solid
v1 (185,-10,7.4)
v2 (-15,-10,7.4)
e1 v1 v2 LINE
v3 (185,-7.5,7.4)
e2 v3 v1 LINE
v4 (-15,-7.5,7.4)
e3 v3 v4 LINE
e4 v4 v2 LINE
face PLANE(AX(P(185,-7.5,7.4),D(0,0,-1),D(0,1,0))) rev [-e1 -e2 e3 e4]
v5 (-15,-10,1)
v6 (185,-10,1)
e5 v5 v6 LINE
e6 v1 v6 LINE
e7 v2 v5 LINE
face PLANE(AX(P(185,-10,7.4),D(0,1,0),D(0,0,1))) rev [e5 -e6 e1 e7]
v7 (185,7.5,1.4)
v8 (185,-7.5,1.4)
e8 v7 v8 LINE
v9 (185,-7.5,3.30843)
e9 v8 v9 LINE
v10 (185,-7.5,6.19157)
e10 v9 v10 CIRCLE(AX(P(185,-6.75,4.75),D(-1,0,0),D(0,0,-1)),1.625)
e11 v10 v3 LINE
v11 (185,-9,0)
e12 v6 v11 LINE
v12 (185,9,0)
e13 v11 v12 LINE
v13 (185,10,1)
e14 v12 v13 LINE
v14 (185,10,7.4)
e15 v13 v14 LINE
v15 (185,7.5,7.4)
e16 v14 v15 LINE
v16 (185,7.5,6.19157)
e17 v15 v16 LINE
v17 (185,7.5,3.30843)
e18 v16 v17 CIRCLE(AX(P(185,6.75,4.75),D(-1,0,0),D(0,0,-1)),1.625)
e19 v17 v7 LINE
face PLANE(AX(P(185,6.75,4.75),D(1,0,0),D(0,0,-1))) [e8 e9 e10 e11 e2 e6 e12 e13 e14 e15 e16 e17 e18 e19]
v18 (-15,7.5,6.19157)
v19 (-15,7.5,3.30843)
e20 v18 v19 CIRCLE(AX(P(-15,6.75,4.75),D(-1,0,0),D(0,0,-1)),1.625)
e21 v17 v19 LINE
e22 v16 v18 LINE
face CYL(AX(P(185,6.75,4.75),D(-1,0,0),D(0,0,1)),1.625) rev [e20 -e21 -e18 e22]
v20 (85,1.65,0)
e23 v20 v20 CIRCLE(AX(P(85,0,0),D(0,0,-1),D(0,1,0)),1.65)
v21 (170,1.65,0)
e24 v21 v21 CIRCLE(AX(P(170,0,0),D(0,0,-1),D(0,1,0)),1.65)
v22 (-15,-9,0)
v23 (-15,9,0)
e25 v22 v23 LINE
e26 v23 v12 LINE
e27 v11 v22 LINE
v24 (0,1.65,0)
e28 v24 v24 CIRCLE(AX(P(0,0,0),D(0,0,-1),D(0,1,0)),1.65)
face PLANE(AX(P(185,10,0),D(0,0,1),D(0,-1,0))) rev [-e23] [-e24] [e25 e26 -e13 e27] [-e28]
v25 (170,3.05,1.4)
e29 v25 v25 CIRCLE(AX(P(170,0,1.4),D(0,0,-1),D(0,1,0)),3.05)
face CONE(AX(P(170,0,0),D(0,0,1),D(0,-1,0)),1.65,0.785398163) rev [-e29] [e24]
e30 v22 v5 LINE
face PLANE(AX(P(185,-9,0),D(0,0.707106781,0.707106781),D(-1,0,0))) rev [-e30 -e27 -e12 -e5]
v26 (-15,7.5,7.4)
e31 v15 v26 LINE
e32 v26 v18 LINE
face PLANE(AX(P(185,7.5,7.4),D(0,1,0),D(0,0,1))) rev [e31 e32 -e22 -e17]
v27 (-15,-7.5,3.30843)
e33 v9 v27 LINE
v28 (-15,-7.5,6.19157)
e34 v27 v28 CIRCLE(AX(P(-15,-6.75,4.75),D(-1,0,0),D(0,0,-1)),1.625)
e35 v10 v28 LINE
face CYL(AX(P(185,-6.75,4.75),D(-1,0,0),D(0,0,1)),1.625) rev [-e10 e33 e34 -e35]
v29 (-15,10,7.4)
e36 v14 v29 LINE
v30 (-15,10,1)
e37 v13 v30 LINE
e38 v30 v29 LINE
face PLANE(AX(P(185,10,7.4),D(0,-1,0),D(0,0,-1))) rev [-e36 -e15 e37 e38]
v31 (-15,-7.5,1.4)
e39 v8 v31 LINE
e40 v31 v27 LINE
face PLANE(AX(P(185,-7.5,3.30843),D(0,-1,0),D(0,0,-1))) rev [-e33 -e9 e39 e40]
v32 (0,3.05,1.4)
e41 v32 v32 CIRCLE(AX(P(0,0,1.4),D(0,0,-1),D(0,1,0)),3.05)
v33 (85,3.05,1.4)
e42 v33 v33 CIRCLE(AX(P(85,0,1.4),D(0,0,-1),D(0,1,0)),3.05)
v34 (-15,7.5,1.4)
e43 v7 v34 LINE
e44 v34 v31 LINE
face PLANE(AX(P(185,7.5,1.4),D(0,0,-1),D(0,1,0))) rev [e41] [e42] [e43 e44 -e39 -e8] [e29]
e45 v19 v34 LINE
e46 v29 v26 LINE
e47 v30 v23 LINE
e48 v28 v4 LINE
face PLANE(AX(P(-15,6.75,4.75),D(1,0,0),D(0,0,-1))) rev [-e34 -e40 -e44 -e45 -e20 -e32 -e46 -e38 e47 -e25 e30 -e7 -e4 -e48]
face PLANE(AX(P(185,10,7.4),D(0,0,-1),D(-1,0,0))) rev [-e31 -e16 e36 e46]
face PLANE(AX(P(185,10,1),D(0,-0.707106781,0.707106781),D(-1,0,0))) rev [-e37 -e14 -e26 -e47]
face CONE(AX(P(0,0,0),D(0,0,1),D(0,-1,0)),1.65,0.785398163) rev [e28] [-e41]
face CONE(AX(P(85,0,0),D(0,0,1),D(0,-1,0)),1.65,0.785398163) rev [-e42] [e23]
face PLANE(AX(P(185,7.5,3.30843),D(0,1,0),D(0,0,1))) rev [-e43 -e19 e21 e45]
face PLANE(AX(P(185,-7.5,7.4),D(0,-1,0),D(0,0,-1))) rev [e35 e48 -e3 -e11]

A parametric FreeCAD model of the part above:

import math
import FreeCAD as App
import Part
import Sketcher
Q = App.Units.Quantity


def edges_at(feature, points):
    """Names of the edges that pass closest to the given points."""
    edges = feature.Shape.Edges
    near = lambda p: min(range(len(edges)), key=lambda i: edges[i].distToShape(Part.Vertex(*p))[0])
    return sorted({f"Edge{near(p) + 1}" for p in points})

doc = App.newDocument("Part")
body = doc.addObject("PartDesign::Body", "Body")

sketch1 = body.newObject("Sketcher::SketchObject", "Sketch")
sketch1.AttachmentSupport = (doc.getObject("YZ_Plane"), [""])
sketch1.MapMode = "FlatFace"
sketch1.AttachmentOffset = App.Placement(App.Vector(0, 0, -15), App.Rotation())
sketch1.addGeometry([
    Part.LineSegment(App.Vector(-7.5, 7.4, 0), App.Vector(-10, 7.4, 0)),
    Part.LineSegment(App.Vector(-10, 7.4, 0), App.Vector(-10, 0, 0)),
    Part.LineSegment(App.Vector(-10, 0, 0), App.Vector(10, 0, 0)),
    Part.LineSegment(App.Vector(10, 0, 0), App.Vector(10, 7.4, 0)),
    Part.LineSegment(App.Vector(10, 7.4, 0), App.Vector(7.5, 7.4, 0)),
    Part.LineSegment(App.Vector(7.5, 7.4, 0), App.Vector(7.5, 6.2, 0)),
    Part.ArcOfCircle(Part.Circle(App.Vector(6.8, 4.8, 0), App.Vector(0, 0, 1), 1.6), math.radians(-63), math.radians(63)),
    Part.LineSegment(App.Vector(7.5, 3.3, 0), App.Vector(7.5, 1.4, 0)),
    Part.LineSegment(App.Vector(7.5, 1.4, 0), App.Vector(-7.5, 1.4, 0)),
    Part.LineSegment(App.Vector(-7.5, 1.4, 0), App.Vector(-7.5, 3.3, 0)),
    Part.ArcOfCircle(Part.Circle(App.Vector(-6.8, 4.8, 0), App.Vector(0, 0, 1), 1.6), math.radians(117), math.radians(243)),
    Part.LineSegment(App.Vector(-7.5, 6.2, 0), App.Vector(-7.5, 7.4, 0)),
], False)
sketch1.addConstraint([
    Sketcher.Constraint("Coincident", 0, 2, 1, 1),
    Sketcher.Constraint("Coincident", 1, 2, 2, 1),
    Sketcher.Constraint("Coincident", 2, 2, 3, 1),
    Sketcher.Constraint("Coincident", 3, 2, 4, 1),
    Sketcher.Constraint("Coincident", 4, 2, 5, 1),
    Sketcher.Constraint("Coincident", 5, 2, 6, 2),
    Sketcher.Constraint("Coincident", 6, 1, 7, 1),
    Sketcher.Constraint("Coincident", 7, 2, 8, 1),
    Sketcher.Constraint("Coincident", 8, 2, 9, 1),
    Sketcher.Constraint("Coincident", 9, 2, 10, 2),
    Sketcher.Constraint("Coincident", 10, 1, 11, 1),
    Sketcher.Constraint("Coincident", 11, 2, 0, 1),
    Sketcher.Constraint("Horizontal", 0),
    Sketcher.Constraint("Vertical", 1),
    Sketcher.Constraint("Horizontal", 2),
    Sketcher.Constraint("Vertical", 3),
    Sketcher.Constraint("Horizontal", 4),
    Sketcher.Constraint("Vertical", 5),
    Sketcher.Constraint("Vertical", 7),
    Sketcher.Constraint("Horizontal", 8),
    Sketcher.Constraint("Vertical", 9),
    Sketcher.Constraint("Vertical", 11),
    Sketcher.Constraint("Equal", 6, 10),
    Sketcher.Constraint("Symmetric", 1, 2, 2, 2, -1, 1),
    Sketcher.Constraint("Symmetric", 6, 3, 10, 3, -2),
    Sketcher.Constraint("Symmetric", 4, 2, 11, 2, -2),
    Sketcher.Constraint("Horizontal", 6, 1, 9, 2),
    Sketcher.Constraint("Vertical", 5, 2, 6, 1),
    Sketcher.Constraint("DistanceX", 2, 1, 2, 2, Q("20 mm")),
    Sketcher.Constraint("DistanceX", 8, 2, 8, 1, Q("15 mm")),
    Sketcher.Constraint("DistanceY", 1, 2, 1, 1, Q("7.4 mm")),
    Sketcher.Constraint("Radius", 6, Q("1.625 mm")),
    Sketcher.Constraint("DistanceY", 7, 2, 4, 2, Q("6 mm")),
    Sketcher.Constraint("DistanceX", 10, 3, 6, 3, Q("13.5 mm")),
    Sketcher.Constraint("DistanceY", -1, 1, 6, 3, Q("4.75 mm")),
])
pad1 = body.newObject("PartDesign::Pad", "Pad")
pad1.Profile = sketch1
pad1.Length = 200
doc.recompute()

chamfer = body.newObject("PartDesign::Chamfer", "Chamfer")
chamfer.Base = (pad1, edges_at(pad1, [(85, 10, 0), (85, -10, 0)]))
chamfer.Size = 1

sketch2 = body.newObject("Sketcher::SketchObject", "Sketch001")
sketch2.AttachmentSupport = (doc.getObject("YZ_Plane"), [""])
sketch2.MapMode = "FlatFace"
sketch2.addGeometry([
    Part.LineSegment(App.Vector(1.6, 0, 0), App.Vector(3, 1.4, 0)),
    Part.LineSegment(App.Vector(3, 1.4, 0), App.Vector(0, 1.4, 0)),
    Part.LineSegment(App.Vector(0, 1.4, 0), App.Vector(0, 0, 0)),
    Part.LineSegment(App.Vector(0, 0, 0), App.Vector(1.6, 0, 0)),
], False)
sketch2.addConstraint([
    Sketcher.Constraint("Coincident", 0, 2, 1, 1),
    Sketcher.Constraint("Coincident", 1, 2, 2, 1),
    Sketcher.Constraint("Coincident", 2, 2, 3, 1),
    Sketcher.Constraint("Coincident", 3, 2, 0, 1),
    Sketcher.Constraint("Horizontal", 1),
    Sketcher.Constraint("Vertical", 2),
    Sketcher.Constraint("Horizontal", 3),
    Sketcher.Constraint("Coincident", 2, 2, -1, 1),
    Sketcher.Constraint("Angle", 0, Q("45 deg")),
    Sketcher.Constraint("DistanceY", 2, 2, 2, 1, Q("1.4 mm")),
    Sketcher.Constraint("DistanceX", 1, 2, 1, 1, Q("3.05 mm")),
])
groove = body.newObject("PartDesign::Groove", "Groove")
groove.Profile = sketch2
groove.ReferenceAxis = (sketch2, ["V_Axis"])
groove.Angle = 360
doc.recompute()

linearpattern = body.newObject("PartDesign::LinearPattern", "LinearPattern")
linearpattern.Originals = [groove]
linearpattern.Direction = (doc.getObject("X_Axis"), [""])
linearpattern.Mode = "offset"
linearpattern.Offset = 85
linearpattern.Occurrences = 2
body.Tip = linearpattern
doc.recompute()

linearpattern2 = body.newObject("PartDesign::LinearPattern", "LinearPattern001")
linearpattern2.Originals = [groove]
linearpattern2.Direction = (doc.getObject("X_Axis"), [""])
linearpattern2.Mode = "offset"
linearpattern2.Offset = 170
linearpattern2.Occurrences = 2
body.Tip = linearpattern2

doc.recompute()
